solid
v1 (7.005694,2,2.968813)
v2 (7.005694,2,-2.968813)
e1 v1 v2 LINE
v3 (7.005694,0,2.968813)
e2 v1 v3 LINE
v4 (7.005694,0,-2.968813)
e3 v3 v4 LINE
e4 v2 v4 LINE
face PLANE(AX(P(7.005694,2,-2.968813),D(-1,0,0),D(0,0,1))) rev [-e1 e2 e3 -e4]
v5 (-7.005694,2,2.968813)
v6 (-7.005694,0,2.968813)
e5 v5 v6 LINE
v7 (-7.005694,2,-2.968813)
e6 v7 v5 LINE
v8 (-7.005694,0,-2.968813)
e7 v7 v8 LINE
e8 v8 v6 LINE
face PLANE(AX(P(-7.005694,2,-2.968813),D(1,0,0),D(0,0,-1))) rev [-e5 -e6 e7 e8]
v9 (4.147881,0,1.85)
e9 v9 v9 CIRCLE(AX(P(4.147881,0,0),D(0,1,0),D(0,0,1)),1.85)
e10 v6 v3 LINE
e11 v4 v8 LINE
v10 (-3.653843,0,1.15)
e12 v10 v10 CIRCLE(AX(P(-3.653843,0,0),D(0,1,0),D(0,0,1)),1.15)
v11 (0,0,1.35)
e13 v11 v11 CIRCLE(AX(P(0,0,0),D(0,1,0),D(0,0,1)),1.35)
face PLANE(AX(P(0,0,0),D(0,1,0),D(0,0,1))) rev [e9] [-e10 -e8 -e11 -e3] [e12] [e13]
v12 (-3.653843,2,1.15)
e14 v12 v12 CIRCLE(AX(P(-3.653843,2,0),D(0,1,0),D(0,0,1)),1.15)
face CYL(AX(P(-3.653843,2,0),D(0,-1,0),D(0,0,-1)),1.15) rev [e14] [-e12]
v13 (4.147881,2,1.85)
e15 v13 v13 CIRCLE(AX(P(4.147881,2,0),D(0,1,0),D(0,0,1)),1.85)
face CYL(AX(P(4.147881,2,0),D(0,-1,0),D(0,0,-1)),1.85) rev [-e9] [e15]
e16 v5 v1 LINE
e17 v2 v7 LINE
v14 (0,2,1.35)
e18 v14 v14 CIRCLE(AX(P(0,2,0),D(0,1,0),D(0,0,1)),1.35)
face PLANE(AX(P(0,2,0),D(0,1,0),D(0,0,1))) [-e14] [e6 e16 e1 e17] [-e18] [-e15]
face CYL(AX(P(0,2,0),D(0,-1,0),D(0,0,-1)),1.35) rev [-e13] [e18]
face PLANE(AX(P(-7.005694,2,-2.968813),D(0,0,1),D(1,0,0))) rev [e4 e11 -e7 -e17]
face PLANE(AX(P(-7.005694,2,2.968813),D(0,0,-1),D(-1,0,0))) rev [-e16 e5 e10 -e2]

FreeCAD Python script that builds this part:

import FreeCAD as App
import Part
import Sketcher

V = App.Vector


def add_polygon(sketch, points):
    """Adds a closed chain of lines whose ends are joined by coincident constraints."""
    first, n = sketch.GeometryCount, len(points)
    for a, b in zip(points, points[1:] + points[:1]):
        sketch.addGeometry(Part.LineSegment(App.Vector(*a, 0), App.Vector(*b, 0)), False)
    for i in range(n):
        sketch.addConstraint(Sketcher.Constraint("Coincident", first + i, 2, first + (i + 1) % n, 1))

doc = App.newDocument("Part")
params = doc.addObject("Spreadsheet::Sheet", "Params")
for row, (alias, value) in enumerate([
    ("sketch1_diameter", "2.3 mm"),
    ("sketch1_diameter2", "2.7 mm"),
    ("sketch1_diameter3", "3.7 mm"),
    ("pad1_length", "2 mm"),
], start=1):
    params.set(f"A{row}", alias)
    params.set(f"B{row}", "=" + value)
    params.setAlias(f"B{row}", alias)

body = doc.addObject("PartDesign::Body", "Body")

sketch1 = doc.addObject("Sketcher::SketchObject", "Sketch")
body.addObject(sketch1)
sketch1.AttachmentSupport = (doc.XZ_Plane, [""])
sketch1.MapMode = "FlatFace"
add_polygon(sketch1, [(-7, -3), (-7, 3), (7, 3), (7, -3)])
sketch1.addGeometry(Part.Circle(V(-3.7, 0, 0), V(0, 0, 1), 1.1), False)
sketch1.addGeometry(Part.Circle(V(0, 0, 0), V(0, 0, 1), 1.4), False)
sketch1.addGeometry(Part.Circle(V(4.1, 0, 0), V(0, 0, 1), 1.9), False)
sketch1.addConstraint([
    Sketcher.Constraint("Vertical", 0),
    Sketcher.Constraint("Horizontal", 1),
    Sketcher.Constraint("Vertical", 2),
    Sketcher.Constraint("Horizontal", 3),
    Sketcher.Constraint("Coincident", 5, 3, -1, 1),
    Sketcher.Constraint("Symmetric", 0, 2, 2, 2, -1, 1),
    Sketcher.Constraint("PointOnObject", 4, 3, -1),
    Sketcher.Constraint("PointOnObject", 6, 3, -1),
    Sketcher.Constraint("Diameter", 4, 2.3),
    Sketcher.Constraint("Diameter", 5, 2.7),
    Sketcher.Constraint("Diameter", 6, 3.7),
    Sketcher.Constraint("DistanceX", 1, 1, 1, 2, 14.011388),
    Sketcher.Constraint("DistanceY", 0, 1, 0, 2, 5.937625),
    Sketcher.Constraint("DistanceX", -1, 1, 6, 3, 4.147881),
    Sketcher.Constraint("DistanceX", 0, 2, 4, 3, 3.351852),
])
sketch1.setExpression("Constraints[12]", "Params.sketch1_diameter")
sketch1.setExpression("Constraints[13]", "Params.sketch1_diameter2")
sketch1.setExpression("Constraints[14]", "Params.sketch1_diameter3")
pad1 = doc.addObject("PartDesign::Pad", "Pad")
body.addObject(pad1)
pad1.Profile = sketch1
pad1.setExpression("Length", "Params.pad1_length")
pad1.Reversed = True

doc.recompute()
